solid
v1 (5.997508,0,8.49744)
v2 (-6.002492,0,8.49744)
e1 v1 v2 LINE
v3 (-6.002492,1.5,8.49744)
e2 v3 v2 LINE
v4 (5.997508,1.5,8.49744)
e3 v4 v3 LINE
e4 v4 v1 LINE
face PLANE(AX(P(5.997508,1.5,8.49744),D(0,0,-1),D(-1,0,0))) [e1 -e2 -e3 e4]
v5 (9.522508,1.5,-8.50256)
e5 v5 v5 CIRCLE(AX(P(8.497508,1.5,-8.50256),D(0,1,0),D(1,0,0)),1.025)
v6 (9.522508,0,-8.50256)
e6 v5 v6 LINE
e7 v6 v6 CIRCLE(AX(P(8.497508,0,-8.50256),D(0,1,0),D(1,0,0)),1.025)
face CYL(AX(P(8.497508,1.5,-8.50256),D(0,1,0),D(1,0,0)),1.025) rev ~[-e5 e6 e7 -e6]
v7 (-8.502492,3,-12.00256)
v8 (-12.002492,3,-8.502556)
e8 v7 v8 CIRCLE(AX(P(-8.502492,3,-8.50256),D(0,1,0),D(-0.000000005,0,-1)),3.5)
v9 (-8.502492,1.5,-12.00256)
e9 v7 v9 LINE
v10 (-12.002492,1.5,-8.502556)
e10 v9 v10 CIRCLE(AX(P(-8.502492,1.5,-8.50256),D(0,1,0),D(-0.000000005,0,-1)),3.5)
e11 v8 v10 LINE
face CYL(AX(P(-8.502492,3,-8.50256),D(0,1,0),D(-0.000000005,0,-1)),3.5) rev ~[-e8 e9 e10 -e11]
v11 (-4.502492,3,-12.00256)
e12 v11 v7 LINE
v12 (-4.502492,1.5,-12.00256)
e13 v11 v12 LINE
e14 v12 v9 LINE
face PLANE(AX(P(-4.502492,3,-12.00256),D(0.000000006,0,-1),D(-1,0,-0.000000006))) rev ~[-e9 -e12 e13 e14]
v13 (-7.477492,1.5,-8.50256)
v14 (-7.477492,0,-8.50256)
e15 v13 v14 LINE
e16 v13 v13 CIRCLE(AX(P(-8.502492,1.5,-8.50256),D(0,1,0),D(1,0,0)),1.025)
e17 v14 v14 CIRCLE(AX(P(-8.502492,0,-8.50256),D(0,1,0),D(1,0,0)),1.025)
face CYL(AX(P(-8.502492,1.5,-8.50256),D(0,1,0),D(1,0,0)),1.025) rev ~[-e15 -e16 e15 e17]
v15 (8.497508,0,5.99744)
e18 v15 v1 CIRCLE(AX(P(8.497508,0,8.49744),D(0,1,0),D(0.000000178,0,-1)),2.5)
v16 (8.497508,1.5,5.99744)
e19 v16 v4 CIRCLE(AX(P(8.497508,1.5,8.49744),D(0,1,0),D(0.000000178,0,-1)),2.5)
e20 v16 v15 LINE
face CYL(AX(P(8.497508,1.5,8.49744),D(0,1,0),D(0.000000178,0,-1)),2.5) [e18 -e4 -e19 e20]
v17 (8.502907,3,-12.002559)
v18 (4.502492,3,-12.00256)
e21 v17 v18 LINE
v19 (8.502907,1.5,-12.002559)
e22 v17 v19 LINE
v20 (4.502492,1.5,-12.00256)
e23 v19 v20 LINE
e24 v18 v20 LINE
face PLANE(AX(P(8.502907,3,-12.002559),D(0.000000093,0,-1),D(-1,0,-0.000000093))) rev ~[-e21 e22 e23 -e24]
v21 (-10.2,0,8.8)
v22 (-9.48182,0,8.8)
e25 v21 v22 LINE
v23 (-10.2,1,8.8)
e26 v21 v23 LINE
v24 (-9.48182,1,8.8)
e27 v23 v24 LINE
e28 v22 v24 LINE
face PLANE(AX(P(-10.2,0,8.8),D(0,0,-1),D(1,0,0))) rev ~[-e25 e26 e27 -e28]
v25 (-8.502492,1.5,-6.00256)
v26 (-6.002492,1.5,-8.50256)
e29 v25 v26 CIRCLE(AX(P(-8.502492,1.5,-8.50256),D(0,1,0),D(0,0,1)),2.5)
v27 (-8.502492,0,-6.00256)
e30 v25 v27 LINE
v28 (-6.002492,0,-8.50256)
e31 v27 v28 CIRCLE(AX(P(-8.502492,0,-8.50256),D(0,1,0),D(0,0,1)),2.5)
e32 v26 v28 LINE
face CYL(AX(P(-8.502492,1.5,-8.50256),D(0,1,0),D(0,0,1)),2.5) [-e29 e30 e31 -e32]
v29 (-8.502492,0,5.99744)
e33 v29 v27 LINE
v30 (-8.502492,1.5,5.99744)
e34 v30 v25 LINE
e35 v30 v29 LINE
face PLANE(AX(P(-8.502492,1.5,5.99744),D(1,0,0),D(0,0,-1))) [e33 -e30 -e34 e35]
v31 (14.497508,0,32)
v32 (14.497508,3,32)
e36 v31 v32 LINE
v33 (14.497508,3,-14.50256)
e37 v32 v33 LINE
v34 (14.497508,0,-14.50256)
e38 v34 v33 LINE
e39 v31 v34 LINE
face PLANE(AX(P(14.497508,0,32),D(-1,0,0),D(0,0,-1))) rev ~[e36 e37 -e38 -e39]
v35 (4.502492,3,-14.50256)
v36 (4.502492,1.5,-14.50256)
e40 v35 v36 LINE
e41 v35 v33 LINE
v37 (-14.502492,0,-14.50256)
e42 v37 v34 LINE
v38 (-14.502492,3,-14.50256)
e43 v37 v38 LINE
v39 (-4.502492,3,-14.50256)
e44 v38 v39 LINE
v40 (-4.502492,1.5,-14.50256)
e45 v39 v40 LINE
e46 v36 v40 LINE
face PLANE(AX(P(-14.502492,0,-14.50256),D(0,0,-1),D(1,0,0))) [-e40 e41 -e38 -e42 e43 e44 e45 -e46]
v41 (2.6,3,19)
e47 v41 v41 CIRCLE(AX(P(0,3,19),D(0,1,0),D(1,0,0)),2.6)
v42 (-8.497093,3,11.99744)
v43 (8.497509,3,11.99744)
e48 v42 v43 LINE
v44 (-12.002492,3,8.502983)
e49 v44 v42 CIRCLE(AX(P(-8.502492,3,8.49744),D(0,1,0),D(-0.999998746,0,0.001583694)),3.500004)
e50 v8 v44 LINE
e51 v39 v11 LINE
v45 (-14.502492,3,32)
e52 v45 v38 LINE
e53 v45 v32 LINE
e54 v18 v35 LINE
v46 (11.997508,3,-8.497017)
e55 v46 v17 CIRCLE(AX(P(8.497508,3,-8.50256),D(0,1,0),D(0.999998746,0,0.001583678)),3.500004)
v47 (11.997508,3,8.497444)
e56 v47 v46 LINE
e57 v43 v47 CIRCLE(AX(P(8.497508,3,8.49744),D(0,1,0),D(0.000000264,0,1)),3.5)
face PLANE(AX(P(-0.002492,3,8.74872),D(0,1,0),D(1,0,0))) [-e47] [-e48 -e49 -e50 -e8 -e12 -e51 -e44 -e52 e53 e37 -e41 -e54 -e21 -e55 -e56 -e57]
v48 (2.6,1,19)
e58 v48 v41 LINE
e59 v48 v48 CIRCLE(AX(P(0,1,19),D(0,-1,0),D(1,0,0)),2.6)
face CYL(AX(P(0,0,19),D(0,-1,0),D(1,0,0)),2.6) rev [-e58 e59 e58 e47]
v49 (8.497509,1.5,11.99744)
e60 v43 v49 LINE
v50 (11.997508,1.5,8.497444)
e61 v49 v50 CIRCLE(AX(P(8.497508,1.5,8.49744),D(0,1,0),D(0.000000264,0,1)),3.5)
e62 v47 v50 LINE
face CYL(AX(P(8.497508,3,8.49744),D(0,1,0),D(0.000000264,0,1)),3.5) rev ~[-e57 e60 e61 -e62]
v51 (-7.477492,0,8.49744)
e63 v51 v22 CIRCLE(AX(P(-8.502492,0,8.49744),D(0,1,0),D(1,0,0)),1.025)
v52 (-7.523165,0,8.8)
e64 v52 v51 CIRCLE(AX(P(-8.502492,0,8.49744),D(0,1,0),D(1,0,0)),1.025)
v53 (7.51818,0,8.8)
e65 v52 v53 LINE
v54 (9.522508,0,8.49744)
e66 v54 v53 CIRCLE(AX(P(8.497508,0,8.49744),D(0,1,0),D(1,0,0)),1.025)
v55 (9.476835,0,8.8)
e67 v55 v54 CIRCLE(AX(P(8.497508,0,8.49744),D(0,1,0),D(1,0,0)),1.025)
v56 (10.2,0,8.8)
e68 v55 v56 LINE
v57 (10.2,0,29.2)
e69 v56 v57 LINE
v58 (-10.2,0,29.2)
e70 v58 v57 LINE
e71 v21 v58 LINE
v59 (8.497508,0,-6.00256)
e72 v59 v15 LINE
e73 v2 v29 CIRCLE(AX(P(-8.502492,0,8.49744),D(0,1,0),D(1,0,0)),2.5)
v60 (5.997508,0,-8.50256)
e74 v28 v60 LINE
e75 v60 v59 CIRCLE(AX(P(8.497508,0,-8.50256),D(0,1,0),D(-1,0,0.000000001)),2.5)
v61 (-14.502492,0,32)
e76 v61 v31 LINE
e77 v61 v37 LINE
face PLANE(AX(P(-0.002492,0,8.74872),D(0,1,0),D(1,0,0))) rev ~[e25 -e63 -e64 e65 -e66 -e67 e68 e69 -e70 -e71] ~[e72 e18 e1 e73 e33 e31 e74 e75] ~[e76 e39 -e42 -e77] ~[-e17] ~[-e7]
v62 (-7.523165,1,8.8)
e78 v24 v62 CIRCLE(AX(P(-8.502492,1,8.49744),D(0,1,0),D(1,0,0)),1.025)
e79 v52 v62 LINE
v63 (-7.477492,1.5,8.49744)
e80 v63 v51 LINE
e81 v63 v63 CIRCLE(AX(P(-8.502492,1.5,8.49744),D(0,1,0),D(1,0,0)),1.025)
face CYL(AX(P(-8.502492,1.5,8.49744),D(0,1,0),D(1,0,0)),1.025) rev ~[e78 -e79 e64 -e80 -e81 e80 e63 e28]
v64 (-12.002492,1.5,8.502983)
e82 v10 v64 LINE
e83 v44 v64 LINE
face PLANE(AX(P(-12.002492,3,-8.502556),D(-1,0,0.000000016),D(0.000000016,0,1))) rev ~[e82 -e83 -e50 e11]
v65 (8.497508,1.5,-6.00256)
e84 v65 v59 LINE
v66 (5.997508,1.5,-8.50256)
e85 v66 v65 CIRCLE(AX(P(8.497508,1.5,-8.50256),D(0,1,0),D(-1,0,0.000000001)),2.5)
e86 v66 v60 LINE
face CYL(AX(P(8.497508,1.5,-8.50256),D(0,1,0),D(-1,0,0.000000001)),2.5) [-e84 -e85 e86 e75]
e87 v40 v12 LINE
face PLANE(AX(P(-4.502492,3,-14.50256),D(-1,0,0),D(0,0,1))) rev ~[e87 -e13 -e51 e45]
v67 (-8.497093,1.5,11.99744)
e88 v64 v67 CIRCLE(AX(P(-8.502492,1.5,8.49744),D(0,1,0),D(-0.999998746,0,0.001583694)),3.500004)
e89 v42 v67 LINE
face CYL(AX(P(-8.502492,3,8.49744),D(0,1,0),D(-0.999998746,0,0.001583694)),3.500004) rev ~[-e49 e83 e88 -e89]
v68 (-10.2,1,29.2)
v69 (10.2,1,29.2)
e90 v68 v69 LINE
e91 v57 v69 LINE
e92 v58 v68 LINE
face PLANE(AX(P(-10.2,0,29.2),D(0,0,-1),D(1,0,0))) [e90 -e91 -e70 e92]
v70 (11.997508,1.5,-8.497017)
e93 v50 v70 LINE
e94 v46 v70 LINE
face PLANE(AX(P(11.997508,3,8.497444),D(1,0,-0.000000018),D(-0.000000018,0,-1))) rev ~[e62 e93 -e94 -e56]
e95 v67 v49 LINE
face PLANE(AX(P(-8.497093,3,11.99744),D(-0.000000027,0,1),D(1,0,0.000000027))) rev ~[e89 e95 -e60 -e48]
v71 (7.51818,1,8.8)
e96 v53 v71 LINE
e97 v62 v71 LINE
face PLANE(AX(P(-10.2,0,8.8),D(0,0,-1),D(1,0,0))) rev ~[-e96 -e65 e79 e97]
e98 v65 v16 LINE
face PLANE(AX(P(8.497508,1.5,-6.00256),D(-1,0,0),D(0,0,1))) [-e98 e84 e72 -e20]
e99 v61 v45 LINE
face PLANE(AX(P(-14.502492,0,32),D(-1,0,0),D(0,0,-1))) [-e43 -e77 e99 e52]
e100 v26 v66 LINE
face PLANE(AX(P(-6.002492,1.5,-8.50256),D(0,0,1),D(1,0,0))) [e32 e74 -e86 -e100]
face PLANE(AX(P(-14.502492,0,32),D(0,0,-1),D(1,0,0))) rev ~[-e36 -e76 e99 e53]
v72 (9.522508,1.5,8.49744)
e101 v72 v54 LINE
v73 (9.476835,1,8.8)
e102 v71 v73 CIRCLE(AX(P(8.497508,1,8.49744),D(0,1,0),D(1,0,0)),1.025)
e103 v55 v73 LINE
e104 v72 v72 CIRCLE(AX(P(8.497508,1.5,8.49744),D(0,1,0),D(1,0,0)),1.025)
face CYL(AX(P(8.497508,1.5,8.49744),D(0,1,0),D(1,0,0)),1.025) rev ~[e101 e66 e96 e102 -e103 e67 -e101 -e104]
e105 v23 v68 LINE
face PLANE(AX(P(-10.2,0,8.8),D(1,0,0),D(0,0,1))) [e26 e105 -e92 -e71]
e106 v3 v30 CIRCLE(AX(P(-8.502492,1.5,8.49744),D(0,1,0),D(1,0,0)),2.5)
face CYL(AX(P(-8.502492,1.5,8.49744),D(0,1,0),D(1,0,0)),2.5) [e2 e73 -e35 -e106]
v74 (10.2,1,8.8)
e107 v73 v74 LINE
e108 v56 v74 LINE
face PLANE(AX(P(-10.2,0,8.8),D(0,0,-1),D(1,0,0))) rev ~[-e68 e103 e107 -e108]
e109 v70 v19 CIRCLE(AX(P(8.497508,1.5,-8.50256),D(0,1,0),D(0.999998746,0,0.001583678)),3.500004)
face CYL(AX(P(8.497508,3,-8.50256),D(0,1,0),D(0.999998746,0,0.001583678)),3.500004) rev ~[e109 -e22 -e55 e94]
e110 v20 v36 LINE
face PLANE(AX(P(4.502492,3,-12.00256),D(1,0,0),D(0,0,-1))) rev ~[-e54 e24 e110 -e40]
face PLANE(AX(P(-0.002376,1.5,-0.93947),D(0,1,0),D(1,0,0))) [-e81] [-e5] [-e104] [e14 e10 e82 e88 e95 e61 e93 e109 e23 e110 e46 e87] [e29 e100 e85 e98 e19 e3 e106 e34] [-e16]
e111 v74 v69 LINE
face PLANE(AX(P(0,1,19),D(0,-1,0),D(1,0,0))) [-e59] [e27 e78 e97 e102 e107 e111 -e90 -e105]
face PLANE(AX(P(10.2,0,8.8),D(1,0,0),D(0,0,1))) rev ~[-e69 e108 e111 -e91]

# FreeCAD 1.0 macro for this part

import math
import FreeCAD as App
import Part
import Sketcher

doc = App.newDocument("Part")
body = doc.addObject("PartDesign::Body", "Body")

# Sketch on XZ plane
sketch1 = body.newObject("Sketcher::SketchObject", "Sketch")
sketch1.AttachmentSupport = (doc.getObject("XZ_Plane"), [""])
sketch1.MapMode = "FlatFace"
sketch1.addGeometry(Part.LineSegment(App.Vector(-14.502492, -14.50256, 0), App.Vector(-14.502492, 32, 0)), False)
sketch1.addGeometry(Part.LineSegment(App.Vector(-14.502492, 32, 0), App.Vector(14.497508, 32, 0)), False)
sketch1.addGeometry(Part.LineSegment(App.Vector(14.497508, 32, 0), App.Vector(14.497508, -14.50256, 0)), False)
sketch1.addGeometry(Part.LineSegment(App.Vector(14.497508, -14.50256, 0), App.Vector(-14.502492, -14.50256, 0)), False)
sketch1.addGeometry(Part.Circle(App.Vector(0, 19, 0), App.Vector(0, 0, 1), 2.6), False)
sketch1.addConstraint(Sketcher.Constraint("Coincident", 0, 2, 1, 1))
sketch1.addConstraint(Sketcher.Constraint("Coincident", 1, 2, 2, 1))
sketch1.addConstraint(Sketcher.Constraint("Coincident", 2, 2, 3, 1))
sketch1.addConstraint(Sketcher.Constraint("Coincident", 3, 2, 0, 1))
sketch1.addConstraint(Sketcher.Constraint("Vertical", 0))
sketch1.addConstraint(Sketcher.Constraint("Horizontal", 1))
sketch1.addConstraint(Sketcher.Constraint("Vertical", 2))
sketch1.addConstraint(Sketcher.Constraint("Horizontal", 3))
sketch1.addConstraint(Sketcher.Constraint("PointOnObject", 4, 3, -2))
sketch1.addConstraint(Sketcher.Constraint("Diameter", 4, 5.2))
sketch1.addConstraint(Sketcher.Constraint("DistanceX", 1, 1, 1, 2, 29.0))
sketch1.addConstraint(Sketcher.Constraint("DistanceY", -1, 1, 4, 3, 19.0))
sketch1.addConstraint(Sketcher.Constraint("DistanceY", -1, 1, 0, 2, 32.0))
sketch1.addConstraint(Sketcher.Constraint("DistanceY", 0, 1, 0, 2, 46.50256))
sketch1.addConstraint(Sketcher.Constraint("DistanceX", 0, 2, -1, 1, 14.502492))
pad1 = body.newObject("PartDesign::Pad", "Pad")
pad1.Profile = sketch1
pad1.Length = 3
pad1.Reversed = True

# Sketch on XZ plane
sketch2 = body.newObject("Sketcher::SketchObject", "Sketch001")
sketch2.AttachmentSupport = (doc.getObject("XZ_Plane"), [""])
sketch2.MapMode = "FlatFace"
sketch2.addGeometry(Part.LineSegment(App.Vector(-10.2, 29.2, 0), App.Vector(-10.2, 8.8, 0)), False)
sketch2.addGeometry(Part.LineSegment(App.Vector(-10.2, 8.8, 0), App.Vector(10.2, 8.8, 0)), False)
sketch2.addGeometry(Part.LineSegment(App.Vector(10.2, 8.8, 0), App.Vector(10.2, 29.2, 0)), False)
sketch2.addGeometry(Part.LineSegment(App.Vector(10.2, 29.2, 0), App.Vector(-10.2, 29.2, 0)), False)
sketch2.addConstraint(Sketcher.Constraint("Coincident", 0, 2, 1, 1))
sketch2.addConstraint(Sketcher.Constraint("Coincident", 1, 2, 2, 1))
sketch2.addConstraint(Sketcher.Constraint("Coincident", 2, 2, 3, 1))
sketch2.addConstraint(Sketcher.Constraint("Coincident", 3, 2, 0, 1))
sketch2.addConstraint(Sketcher.Constraint("Vertical", 0))
sketch2.addConstraint(Sketcher.Constraint("Horizontal", 1))
sketch2.addConstraint(Sketcher.Constraint("Vertical", 2))
sketch2.addConstraint(Sketcher.Constraint("Horizontal", 3))
sketch2.addConstraint(Sketcher.Constraint("Equal", 3, 0))
sketch2.addConstraint(Sketcher.Constraint("DistanceX", 1, 1, 1, 2, 20.4))
sketch2.addConstraint(Sketcher.Constraint("DistanceX", 0, 2, -1, 1, 10.2))
sketch2.addConstraint(Sketcher.Constraint("DistanceY", -1, 1, 0, 2, 8.8))
pocket1 = body.newObject("PartDesign::Pocket", "Pocket")
pocket1.Profile = sketch2
pocket1.Length = 1

# Sketch on XZ plane
sketch3 = body.newObject("Sketcher::SketchObject", "Sketch002")
sketch3.AttachmentSupport = (doc.getObject("XZ_Plane"), [""])
sketch3.MapMode = "FlatFace"
sketch3.AttachmentOffset = App.Placement(App.Vector(0, 0, -3), App.Rotation())
sketch3.addGeometry(Part.LineSegment(App.Vector(-12.002492, -8.502556, 0), App.Vector(-12.002492, 8.502983, 0)), False)
sketch3.addGeometry(Part.ArcOfCircle(Part.Circle(App.Vector(-8.502492, 8.49744, 0), App.Vector(0, 0, 1), 3.500004), math.radians(89.911616), math.radians(179.909261)), False)
sketch3.addGeometry(Part.LineSegment(App.Vector(-8.497093, 11.99744, 0), App.Vector(8.497509, 11.99744, 0)), False)
sketch3.addGeometry(Part.ArcOfCircle(Part.Circle(App.Vector(8.497508, 8.49744, 0), App.Vector(0, 0, 1), 3.5), math.radians(0.000055), math.radians(89.999985)), False)
sketch3.addGeometry(Part.LineSegment(App.Vector(11.997508, 8.497444, 0), App.Vector(11.997508, -8.497017, 0)), False)
sketch3.addGeometry(Part.ArcOfCircle(Part.Circle(App.Vector(8.497508, -8.50256, 0), App.Vector(0, 0, 1), 3.500004), math.radians(-89.911615), math.radians(0.090738)), False)
sketch3.addGeometry(Part.LineSegment(App.Vector(8.502907, -12.002559, 0), App.Vector(4.502492, -12.00256, 0)), False)
sketch3.addGeometry(Part.LineSegment(App.Vector(4.502492, -12.00256, 0), App.Vector(4.502492, -14.50256, 0)), False)
sketch3.addGeometry(Part.LineSegment(App.Vector(4.502492, -14.50256, 0), App.Vector(-4.502492, -14.50256, 0)), False)
sketch3.addGeometry(Part.LineSegment(App.Vector(-4.502492, -14.50256, 0), App.Vector(-4.502492, -12.00256, 0)), False)
sketch3.addGeometry(Part.LineSegment(App.Vector(-4.502492, -12.00256, 0), App.Vector(-8.502492, -12.00256, 0)), False)
sketch3.addGeometry(Part.ArcOfCircle(Part.Circle(App.Vector(-8.502492, -8.50256, 0), App.Vector(0, 0, 1), 3.5), math.radians(179.999948), math.radians(270)), False)
sketch3.addConstraint(Sketcher.Constraint("Coincident", 0, 2, 1, 2))
sketch3.addConstraint(Sketcher.Constraint("Coincident", 1, 1, 2, 1))
sketch3.addConstraint(Sketcher.Constraint("Tangent", 2, 2, 3, 2))
sketch3.addConstraint(Sketcher.Constraint("Tangent", 3, 1, 4, 1))
sketch3.addConstraint(Sketcher.Constraint("Coincident", 4, 2, 5, 2))
sketch3.addConstraint(Sketcher.Constraint("Coincident", 5, 1, 6, 1))
sketch3.addConstraint(Sketcher.Constraint("Coincident", 6, 2, 7, 1))
sketch3.addConstraint(Sketcher.Constraint("Coincident", 7, 2, 8, 1))
sketch3.addConstraint(Sketcher.Constraint("Coincident", 8, 2, 9, 1))
sketch3.addConstraint(Sketcher.Constraint("Coincident", 9, 2, 10, 1))
sketch3.addConstraint(Sketcher.Constraint("Tangent", 10, 2, 11, 2))
sketch3.addConstraint(Sketcher.Constraint("Tangent", 11, 1, 0, 1))
sketch3.addConstraint(Sketcher.Constraint("Vertical", 0))
sketch3.addConstraint(Sketcher.Constraint("Horizontal", 2))
sketch3.addConstraint(Sketcher.Constraint("Vertical", 4))
sketch3.addConstraint(Sketcher.Constraint("Horizontal", 6))
sketch3.addConstraint(Sketcher.Constraint("Vertical", 7))
sketch3.addConstraint(Sketcher.Constraint("Horizontal", 8))
sketch3.addConstraint(Sketcher.Constraint("Vertical", 9))
sketch3.addConstraint(Sketcher.Constraint("Horizontal", 10))
sketch3.addConstraint(Sketcher.Constraint("Equal", 1, 5))
sketch3.addConstraint(Sketcher.Constraint("Equal", 3, 11))
sketch3.addConstraint(Sketcher.Constraint("Symmetric", 6, 2, 9, 2, -2))
sketch3.addConstraint(Sketcher.Constraint("Horizontal", 1, 3, 3, 3))
sketch3.addConstraint(Sketcher.Constraint("Radius", 3, 3.5))
sketch3.addConstraint(Sketcher.Constraint("DistanceX", 10, 2, 10, 1, 4.0))
sketch3.addConstraint(Sketcher.Constraint("DistanceY", 7, 2, 7, 1, 2.5))
sketch3.addConstraint(Sketcher.Constraint("DistanceX", 1, 3, 3, 3, 17.0))
sketch3.addConstraint(Sketcher.Constraint("DistanceY", 5, 3, 3, 3, 17.0))
sketch3.addConstraint(Sketcher.Constraint("DistanceY", 5, 1, 5, 3, 3.5))
sketch3.addConstraint(Sketcher.Constraint("DistanceX", 2, 1, 2, 2, 16.994602))
sketch3.addConstraint(Sketcher.Constraint("DistanceY", 0, 1, 0, 2, 17.00554))
sketch3.addConstraint(Sketcher.Constraint("DistanceY", 4, 2, 4, 1, 16.99446))
sketch3.addConstraint(Sketcher.Constraint("DistanceX", 6, 2, 6, 1, 4.000415))
sketch3.addConstraint(Sketcher.Constraint("DistanceY", -1, 1, 1, 3, 8.49744))
pocket2 = body.newObject("PartDesign::Pocket", "Pocket001")
pocket2.Profile = sketch3
pocket2.Length = 1.5
pocket2.Reversed = True

# Sketch on XZ plane
sketch4 = body.newObject("Sketcher::SketchObject", "Sketch003")
sketch4.AttachmentSupport = (doc.getObject("XZ_Plane"), [""])
sketch4.MapMode = "FlatFace"
sketch4.AttachmentOffset = App.Placement(App.Vector(0, 0, -1.5), App.Rotation())
sketch4.addGeometry(Part.Circle(App.Vector(-8.502492, -8.50256, 0), App.Vector(0, 0, 1), 1.025), False)
sketch4.addGeometry(Part.Circle(App.Vector(8.497508, -8.50256, 0), App.Vector(0, 0, 1), 1.025), False)
sketch4.addGeometry(Part.Circle(App.Vector(8.497508, 8.49744, 0), App.Vector(0, 0, 1), 1.025), False)
sketch4.addGeometry(Part.Circle(App.Vector(-8.502492, 8.49744, 0), App.Vector(0, 0, 1), 1.025), False)
sketch4.addConstraint(Sketcher.Constraint("Equal", 0, 1))
sketch4.addConstraint(Sketcher.Constraint("Equal", 1, 2))
sketch4.addConstraint(Sketcher.Constraint("Equal", 2, 3))
sketch4.addConstraint(Sketcher.Constraint("Horizontal", 0, 3, 1, 3))
sketch4.addConstraint(Sketcher.Constraint("Horizontal", 2, 3, 3, 3))
sketch4.addConstraint(Sketcher.Constraint("Vertical", 1, 3, 2, 3))
sketch4.addConstraint(Sketcher.Constraint("Vertical", 0, 3, 3, 3))
sketch4.addConstraint(Sketcher.Constraint("Diameter", 0, 2.05))
sketch4.addConstraint(Sketcher.Constraint("DistanceX", 0, 3, 1, 3, 17.0))
sketch4.addConstraint(Sketcher.Constraint("DistanceY", 1, 3, 2, 3, 17.0))
sketch4.addConstraint(Sketcher.Constraint("DistanceX", 0, 3, -1, 1, 8.502492))
sketch4.addConstraint(Sketcher.Constraint("DistanceY", 0, 3, -1, 1, 8.50256))
pocket3 = body.newObject("PartDesign::Pocket", "Pocket002")
pocket3.Profile = sketch4
pocket3.Length = 1.5
pocket3.Reversed = True

# Sketch on XZ plane
sketch5 = body.newObject("Sketcher::SketchObject", "Sketch004")
sketch5.AttachmentSupport = (doc.getObject("XZ_Plane"), [""])
sketch5.MapMode = "FlatFace"
sketch5.AttachmentOffset = App.Placement(App.Vector(0, 0, -1.5), App.Rotation())
sketch5.addGeometry(Part.LineSegment(App.Vector(5.997508, -8.50256, 0), App.Vector(-6.002492, -8.50256, 0)), False)
sketch5.addGeometry(Part.ArcOfCircle(Part.Circle(App.Vector(-8.502492, -8.50256, 0), App.Vector(0, 0, 1), 2.5), math.radians(0), math.radians(90)), False)
sketch5.addGeometry(Part.LineSegment(App.Vector(-8.502492, -6.00256, 0), App.Vector(-8.502492, 5.99744, 0)), False)
sketch5.addGeometry(Part.ArcOfCircle(Part.Circle(App.Vector(-8.502492, 8.49744, 0), App.Vector(0, 0, 1), 2.5), math.radians(-89.99999), math.radians(0)), False)
sketch5.addGeometry(Part.LineSegment(App.Vector(-6.002492, 8.49744, 0), App.Vector(5.997508, 8.49744, 0)), False)
sketch5.addGeometry(Part.ArcOfCircle(Part.Circle(App.Vector(8.497508, 8.49744, 0), App.Vector(0, 0, 1), 2.5), math.radians(180), math.radians(270.00001)), False)
sketch5.addGeometry(Part.LineSegment(App.Vector(8.497508, 5.99744, 0), App.Vector(8.497508, -6.00256, 0)), False)
sketch5.addGeometry(Part.ArcOfCircle(Part.Circle(App.Vector(8.497508, -8.50256, 0), App.Vector(0, 0, 1), 2.5), math.radians(90), math.radians(180)), False)
sketch5.addConstraint(Sketcher.Constraint("Coincident", 0, 2, 1, 1))
sketch5.addConstraint(Sketcher.Constraint("Coincident", 1, 2, 2, 1))
sketch5.addConstraint(Sketcher.Constraint("Coincident", 2, 2, 3, 1))
sketch5.addConstraint(Sketcher.Constraint("Coincident", 3, 2, 4, 1))
sketch5.addConstraint(Sketcher.Constraint("Coincident", 4, 2, 5, 1))
sketch5.addConstraint(Sketcher.Constraint("Coincident", 5, 2, 6, 1))
sketch5.addConstraint(Sketcher.Constraint("Coincident", 6, 2, 7, 1))
sketch5.addConstraint(Sketcher.Constraint("Coincident", 7, 2, 0, 1))
sketch5.addConstraint(Sketcher.Constraint("Horizontal", 0))
sketch5.addConstraint(Sketcher.Constraint("Vertical", 2))
sketch5.addConstraint(Sketcher.Constraint("Horizontal", 4))
sketch5.addConstraint(Sketcher.Constraint("Vertical", 6))
sketch5.addConstraint(Sketcher.Constraint("Equal", 1, 3))
sketch5.addConstraint(Sketcher.Constraint("Equal", 3, 5))
sketch5.addConstraint(Sketcher.Constraint("Equal", 5, 7))
sketch5.addConstraint(Sketcher.Constraint("Horizontal", 3, 3, 5, 3))
sketch5.addConstraint(Sketcher.Constraint("Horizontal", 1, 3, 7, 3))
sketch5.addConstraint(Sketcher.Constraint("Horizontal", 7, 3, 0, 2))
sketch5.addConstraint(Sketcher.Constraint("Horizontal", 5, 3, 3, 2))
sketch5.addConstraint(Sketcher.Constraint("Vertical", 1, 3, 3, 3))
sketch5.addConstraint(Sketcher.Constraint("Vertical", 5, 3, 7, 3))
sketch5.addConstraint(Sketcher.Constraint("Vertical", 3, 3, 1, 2))
sketch5.addConstraint(Sketcher.Constraint("Vertical", 7, 3, 5, 2))
sketch5.addConstraint(Sketcher.Constraint("Equal", 4, 2))
sketch5.addConstraint(Sketcher.Constraint("Radius", 1, 2.5))
sketch5.addConstraint(Sketcher.Constraint("DistanceX", 0, 2, 0, 1, 12.0))
sketch5.addConstraint(Sketcher.Constraint("DistanceX", 1, 3, -1, 1, 8.502492))
sketch5.addConstraint(Sketcher.Constraint("DistanceY", 1, 3, -1, 1, 8.50256))
pocket4 = body.newObject("PartDesign::Pocket", "Pocket003")
pocket4.Profile = sketch5
pocket4.Length = 1.5
pocket4.Reversed = True

doc.recompute()
